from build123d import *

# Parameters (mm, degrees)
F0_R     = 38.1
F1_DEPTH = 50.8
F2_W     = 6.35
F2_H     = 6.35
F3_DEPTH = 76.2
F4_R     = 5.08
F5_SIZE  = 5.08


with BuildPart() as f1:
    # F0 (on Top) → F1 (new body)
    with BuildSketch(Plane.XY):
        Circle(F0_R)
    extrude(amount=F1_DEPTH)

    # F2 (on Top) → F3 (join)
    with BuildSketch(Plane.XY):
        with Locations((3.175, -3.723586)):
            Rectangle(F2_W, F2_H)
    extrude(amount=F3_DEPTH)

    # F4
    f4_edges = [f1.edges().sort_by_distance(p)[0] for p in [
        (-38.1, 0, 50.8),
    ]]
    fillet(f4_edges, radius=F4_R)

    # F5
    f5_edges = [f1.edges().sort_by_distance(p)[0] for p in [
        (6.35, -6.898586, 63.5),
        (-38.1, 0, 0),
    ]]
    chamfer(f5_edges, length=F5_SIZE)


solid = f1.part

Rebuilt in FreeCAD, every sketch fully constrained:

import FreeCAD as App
import Part
import Sketcher
from FreeCAD import Vector
Q = App.Units.Quantity


def edges_at(feature, points):
    """Names of the edges that pass closest to the given points."""
    edges = feature.Shape.Edges
    near = lambda p: min(range(len(edges)), key=lambda i: edges[i].distToShape(Part.Vertex(*p))[0])
    return sorted({f"Edge{near(p) + 1}" for p in points})

doc = App.newDocument("Part")
body = doc.addObject("PartDesign::Body", "Body")

sketch1 = doc.addObject("Sketcher::SketchObject", "Sketch")
body.addObject(sketch1)
sketch1.AttachmentSupport = (doc.XY_Plane, [""])
sketch1.MapMode = "FlatFace"
sketch1.addGeometry(Part.Circle(Vector(0, 0, 0), Vector(0, 0, 1), 38), False)
sketch1.addConstraint(Sketcher.Constraint("Coincident", 0, 3, -1, 1))
sketch1.addConstraint(Sketcher.Constraint("Diameter", 0, Q("3 in")))
pad1 = doc.addObject("PartDesign::Pad", "Pad")
body.addObject(pad1)
pad1.Profile = sketch1
pad1.Length = Q("2 in")

sketch2 = doc.addObject("Sketcher::SketchObject", "Sketch001")
body.addObject(sketch2)
sketch2.AttachmentSupport = (doc.XY_Plane, [""])
sketch2.MapMode = "FlatFace"
sketch2.addGeometry(Part.LineSegment(Vector(0, -1, 0), Vector(0, -7, 0)), False)
sketch2.addGeometry(Part.LineSegment(Vector(0, -7, 0), Vector(6, -7, 0)), False)
sketch2.addGeometry(Part.LineSegment(Vector(6, -7, 0), Vector(6, -1, 0)), False)
sketch2.addGeometry(Part.LineSegment(Vector(6, -1, 0), Vector(0, -1, 0)), False)
sketch2.addConstraint(Sketcher.Constraint("Coincident", 0, 2, 1, 1))
sketch2.addConstraint(Sketcher.Constraint("Coincident", 1, 2, 2, 1))
sketch2.addConstraint(Sketcher.Constraint("Coincident", 2, 2, 3, 1))
sketch2.addConstraint(Sketcher.Constraint("Coincident", 3, 2, 0, 1))
sketch2.addConstraint(Sketcher.Constraint("Vertical", 0))
sketch2.addConstraint(Sketcher.Constraint("Horizontal", 1))
sketch2.addConstraint(Sketcher.Constraint("Vertical", 2))
sketch2.addConstraint(Sketcher.Constraint("Horizontal", 3))
sketch2.addConstraint(Sketcher.Constraint("PointOnObject", 0, 2, -2))
sketch2.addConstraint(Sketcher.Constraint("Equal", 3, 0))
sketch2.addConstraint(Sketcher.Constraint("DistanceX", 1, 1, 1, 2, Q("0.25 in")))
sketch2.addConstraint(Sketcher.Constraint("DistanceY", 0, 2, -1, 1, Q("6.898586 mm")))
pad2 = doc.addObject("PartDesign::Pad", "Pad001")
body.addObject(pad2)
pad2.Profile = sketch2
pad2.Length = Q("3 in")
doc.recompute()

fillet = doc.addObject("PartDesign::Fillet", "Fillet")
body.addObject(fillet)
fillet.Base = (pad2, edges_at(pad2, [(-38.1, 0, 50.8)]))
fillet.Radius = Q("0.2 in")
doc.recompute()

chamfer = doc.addObject("PartDesign::Chamfer", "Chamfer")
body.addObject(chamfer)
chamfer.Base = (fillet, edges_at(fillet, [(6.35, -6.899, 63.5), (-38.1, 0, 0)]))
chamfer.Size = Q("0.2 in")

doc.recompute()
